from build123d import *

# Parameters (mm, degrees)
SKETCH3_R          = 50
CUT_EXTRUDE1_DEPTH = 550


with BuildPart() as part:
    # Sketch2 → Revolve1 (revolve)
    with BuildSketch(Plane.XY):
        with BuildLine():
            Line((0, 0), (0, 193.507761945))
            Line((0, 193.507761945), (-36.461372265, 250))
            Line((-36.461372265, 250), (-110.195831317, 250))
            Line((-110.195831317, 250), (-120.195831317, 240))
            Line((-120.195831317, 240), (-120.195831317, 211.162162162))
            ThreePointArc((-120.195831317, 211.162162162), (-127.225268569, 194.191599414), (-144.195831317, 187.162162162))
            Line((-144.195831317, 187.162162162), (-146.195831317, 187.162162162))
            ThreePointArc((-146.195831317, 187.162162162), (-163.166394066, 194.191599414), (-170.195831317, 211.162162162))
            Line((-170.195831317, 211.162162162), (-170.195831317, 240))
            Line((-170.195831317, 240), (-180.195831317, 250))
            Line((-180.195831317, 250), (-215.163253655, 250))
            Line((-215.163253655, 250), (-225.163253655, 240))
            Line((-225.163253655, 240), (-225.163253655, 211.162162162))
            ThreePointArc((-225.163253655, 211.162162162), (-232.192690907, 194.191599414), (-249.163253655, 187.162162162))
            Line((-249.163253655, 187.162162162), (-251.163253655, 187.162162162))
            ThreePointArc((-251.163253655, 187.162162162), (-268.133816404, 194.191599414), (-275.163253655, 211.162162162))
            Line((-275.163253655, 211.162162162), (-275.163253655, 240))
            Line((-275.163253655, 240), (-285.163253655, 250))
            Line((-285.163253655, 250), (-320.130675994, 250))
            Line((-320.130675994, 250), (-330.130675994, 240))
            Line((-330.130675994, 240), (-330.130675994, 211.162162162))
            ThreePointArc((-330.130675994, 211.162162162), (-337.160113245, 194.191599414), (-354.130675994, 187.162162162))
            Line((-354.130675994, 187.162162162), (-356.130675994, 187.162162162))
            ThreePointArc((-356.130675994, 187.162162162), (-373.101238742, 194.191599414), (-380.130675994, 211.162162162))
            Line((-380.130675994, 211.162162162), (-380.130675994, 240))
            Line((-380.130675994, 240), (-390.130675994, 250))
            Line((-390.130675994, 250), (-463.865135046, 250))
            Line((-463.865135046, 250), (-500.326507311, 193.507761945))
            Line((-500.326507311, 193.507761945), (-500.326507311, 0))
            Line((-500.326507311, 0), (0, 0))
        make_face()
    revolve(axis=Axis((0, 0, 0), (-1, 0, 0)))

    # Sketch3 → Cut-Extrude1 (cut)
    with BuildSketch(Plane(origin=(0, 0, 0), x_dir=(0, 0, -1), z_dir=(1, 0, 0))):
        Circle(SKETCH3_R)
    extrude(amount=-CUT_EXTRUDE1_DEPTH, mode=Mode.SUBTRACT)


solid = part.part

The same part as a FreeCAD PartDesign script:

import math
import FreeCAD as App
import Part
import Sketcher

V = App.Vector

doc = App.newDocument("Part")
body = doc.addObject("PartDesign::Body", "Body")

sketch1 = doc.addObject("Sketcher::SketchObject", "Sketch")
body.addObject(sketch1)
sketch1.AttachmentSupport = (doc.XY_Plane, [""])
sketch1.MapMode = "FlatFace"
sketch1.addGeometry(Part.LineSegment(V(0, 0, 0), V(0, 193.5, 0)), False)
sketch1.addGeometry(Part.LineSegment(V(0, 193.5, 0), V(-36.5, 250, 0)), False)
sketch1.addGeometry(Part.LineSegment(V(-36.5, 250, 0), V(-110.2, 250, 0)), False)
sketch1.addGeometry(Part.LineSegment(V(-110.2, 250, 0), V(-120.2, 240, 0)), False)
sketch1.addGeometry(Part.LineSegment(V(-120.2, 240, 0), V(-120.2, 211.2, 0)), False)
sketch1.addGeometry(Part.ArcOfCircle(Part.Circle(V(-144.2, 211.2, 0), V(0, 0, 1), 24), math.radians(-90), math.radians(0)), False)
sketch1.addGeometry(Part.LineSegment(V(-144.2, 187.2, 0), V(-146.2, 187.2, 0)), False)
sketch1.addGeometry(Part.ArcOfCircle(Part.Circle(V(-146.2, 211.2, 0), V(0, 0, 1), 24), math.radians(180), math.radians(270)), False)
sketch1.addGeometry(Part.LineSegment(V(-170.2, 211.2, 0), V(-170.2, 240, 0)), False)
sketch1.addGeometry(Part.LineSegment(V(-170.2, 240, 0), V(-180.2, 250, 0)), False)
sketch1.addGeometry(Part.LineSegment(V(-180.2, 250, 0), V(-215.2, 250, 0)), False)
sketch1.addGeometry(Part.LineSegment(V(-215.2, 250, 0), V(-225.2, 240, 0)), False)
sketch1.addGeometry(Part.LineSegment(V(-225.2, 240, 0), V(-225.2, 211.2, 0)), False)
sketch1.addGeometry(Part.ArcOfCircle(Part.Circle(V(-249.2, 211.2, 0), V(0, 0, 1), 24), math.radians(-90), math.radians(0)), False)
sketch1.addGeometry(Part.LineSegment(V(-249.2, 187.2, 0), V(-251.2, 187.2, 0)), False)
sketch1.addGeometry(Part.ArcOfCircle(Part.Circle(V(-251.2, 211.2, 0), V(0, 0, 1), 24), math.radians(180), math.radians(270)), False)
sketch1.addGeometry(Part.LineSegment(V(-275.2, 211.2, 0), V(-275.2, 240, 0)), False)
sketch1.addGeometry(Part.LineSegment(V(-275.2, 240, 0), V(-285.2, 250, 0)), False)
sketch1.addGeometry(Part.LineSegment(V(-285.2, 250, 0), V(-320.1, 250, 0)), False)
sketch1.addGeometry(Part.LineSegment(V(-320.1, 250, 0), V(-330.1, 240, 0)), False)
sketch1.addGeometry(Part.LineSegment(V(-330.1, 240, 0), V(-330.1, 211.2, 0)), False)
sketch1.addGeometry(Part.ArcOfCircle(Part.Circle(V(-354.1, 211.2, 0), V(0, 0, 1), 24), math.radians(-90), math.radians(0)), False)
sketch1.addGeometry(Part.LineSegment(V(-354.1, 187.2, 0), V(-356.1, 187.2, 0)), False)
sketch1.addGeometry(Part.ArcOfCircle(Part.Circle(V(-356.1, 211.2, 0), V(0, 0, 1), 24), math.radians(-180), math.radians(-90)), False)
sketch1.addGeometry(Part.LineSegment(V(-380.1, 211.2, 0), V(-380.1, 240, 0)), False)
sketch1.addGeometry(Part.LineSegment(V(-380.1, 240, 0), V(-390.1, 250, 0)), False)
sketch1.addGeometry(Part.LineSegment(V(-390.1, 250, 0), V(-463.9, 250, 0)), False)
sketch1.addGeometry(Part.LineSegment(V(-463.9, 250, 0), V(-500.3, 193.5, 0)), False)
sketch1.addGeometry(Part.LineSegment(V(-500.3, 193.5, 0), V(-500.3, 0, 0)), False)
sketch1.addGeometry(Part.LineSegment(V(-500.3, 0, 0), V(0, 0, 0)), False)
sketch1.addConstraint(Sketcher.Constraint("Coincident", 0, 2, 1, 1))
sketch1.addConstraint(Sketcher.Constraint("Coincident", 1, 2, 2, 1))
sketch1.addConstraint(Sketcher.Constraint("Coincident", 2, 2, 3, 1))
sketch1.addConstraint(Sketcher.Constraint("Coincident", 3, 2, 4, 1))
sketch1.addConstraint(Sketcher.Constraint("Tangent", 4, 2, 5, 2))
sketch1.addConstraint(Sketcher.Constraint("Tangent", 5, 1, 6, 1))
sketch1.addConstraint(Sketcher.Constraint("Tangent", 6, 2, 7, 2))
sketch1.addConstraint(Sketcher.Constraint("Tangent", 7, 1, 8, 1))
sketch1.addConstraint(Sketcher.Constraint("Coincident", 8, 2, 9, 1))
sketch1.addConstraint(Sketcher.Constraint("Coincident", 9, 2, 10, 1))
sketch1.addConstraint(Sketcher.Constraint("Coincident", 10, 2, 11, 1))
sketch1.addConstraint(Sketcher.Constraint("Coincident", 11, 2, 12, 1))
sketch1.addConstraint(Sketcher.Constraint("Tangent", 12, 2, 13, 2))
sketch1.addConstraint(Sketcher.Constraint("Tangent", 13, 1, 14, 1))
sketch1.addConstraint(Sketcher.Constraint("Tangent", 14, 2, 15, 2))
sketch1.addConstraint(Sketcher.Constraint("Tangent", 15, 1, 16, 1))
sketch1.addConstraint(Sketcher.Constraint("Coincident", 16, 2, 17, 1))
sketch1.addConstraint(Sketcher.Constraint("Coincident", 17, 2, 18, 1))
sketch1.addConstraint(Sketcher.Constraint("Coincident", 18, 2, 19, 1))
sketch1.addConstraint(Sketcher.Constraint("Coincident", 19, 2, 20, 1))
sketch1.addConstraint(Sketcher.Constraint("Tangent", 20, 2, 21, 2))
sketch1.addConstraint(Sketcher.Constraint("Tangent", 21, 1, 22, 1))
sketch1.addConstraint(Sketcher.Constraint("Tangent", 22, 2, 23, 2))
sketch1.addConstraint(Sketcher.Constraint("Tangent", 23, 1, 24, 1))
sketch1.addConstraint(Sketcher.Constraint("Coincident", 24, 2, 25, 1))
sketch1.addConstraint(Sketcher.Constraint("Coincident", 25, 2, 26, 1))
sketch1.addConstraint(Sketcher.Constraint("Coincident", 26, 2, 27, 1))
sketch1.addConstraint(Sketcher.Constraint("Coincident", 27, 2, 28, 1))
sketch1.addConstraint(Sketcher.Constraint("Coincident", 28, 2, 29, 1))
sketch1.addConstraint(Sketcher.Constraint("Coincident", 29, 2, 0, 1))
sketch1.addConstraint(Sketcher.Constraint("Vertical", 0))
sketch1.addConstraint(Sketcher.Constraint("Horizontal", 2))
sketch1.addConstraint(Sketcher.Constraint("Vertical", 4))
sketch1.addConstraint(Sketcher.Constraint("Horizontal", 6))
sketch1.addConstraint(Sketcher.Constraint("Vertical", 8))
sketch1.addConstraint(Sketcher.Constraint("Horizontal", 10))
sketch1.addConstraint(Sketcher.Constraint("Vertical", 12))
sketch1.addConstraint(Sketcher.Constraint("Horizontal", 14))
sketch1.addConstraint(Sketcher.Constraint("Vertical", 16))
sketch1.addConstraint(Sketcher.Constraint("Horizontal", 18))
sketch1.addConstraint(Sketcher.Constraint("Vertical", 20))
sketch1.addConstraint(Sketcher.Constraint("Horizontal", 22))
sketch1.addConstraint(Sketcher.Constraint("Vertical", 24))
sketch1.addConstraint(Sketcher.Constraint("Horizontal", 26))
sketch1.addConstraint(Sketcher.Constraint("Vertical", 28))
sketch1.addConstraint(Sketcher.Constraint("Horizontal", 29))
sketch1.addConstraint(Sketcher.Constraint("Coincident", 29, 2, -1, 1))
sketch1.addConstraint(Sketcher.Constraint("Equal", 5, 7))
sketch1.addConstraint(Sketcher.Constraint("Equal", 7, 13))
sketch1.addConstraint(Sketcher.Constraint("Equal", 13, 15))
sketch1.addConstraint(Sketcher.Constraint("Equal", 15, 21))
sketch1.addConstraint(Sketcher.Constraint("Equal", 21, 23))
sketch1.addConstraint(Sketcher.Constraint("Perpendicular", 3, 9))
sketch1.addConstraint(Sketcher.Constraint("Perpendicular", 9, 11))
sketch1.addConstraint(Sketcher.Constraint("Perpendicular", 11, 17))
sketch1.addConstraint(Sketcher.Constraint("Perpendicular", 17, 19))
sketch1.addConstraint(Sketcher.Constraint("Perpendicular", 19, 25))
sketch1.addConstraint(Sketcher.Constraint("Horizontal", 7, 3, 13, 3))
sketch1.addConstraint(Sketcher.Constraint("Horizontal", 15, 3, 21, 3))
sketch1.addConstraint(Sketcher.Constraint("Horizontal", 3, 2, 8, 2))
sketch1.addConstraint(Sketcher.Constraint("Horizontal", 2, 2, 9, 2))
sketch1.addConstraint(Sketcher.Constraint("Horizontal", 8, 2, 11, 2))
sketch1.addConstraint(Sketcher.Constraint("Horizontal", 11, 2, 16, 2))
sketch1.addConstraint(Sketcher.Constraint("Horizontal", 10, 2, 17, 2))
sketch1.addConstraint(Sketcher.Constraint("Horizontal", 16, 2, 19, 2))
sketch1.addConstraint(Sketcher.Constraint("Horizontal", 19, 2, 24, 2))
sketch1.addConstraint(Sketcher.Constraint("Horizontal", 18, 2, 25, 2))
sketch1.addConstraint(Sketcher.Constraint("Horizontal", 0, 2, 27, 2))
sketch1.addConstraint(Sketcher.Constraint("Equal", 6, 14))
sketch1.addConstraint(Sketcher.Constraint("Equal", 10, 18))
sketch1.addConstraint(Sketcher.Constraint("Equal", 14, 22))
sketch1.addConstraint(Sketcher.Constraint("Equal", 2, 26))
sketch1.addConstraint(Sketcher.Constraint("Equal", 3, 9))
sketch1.addConstraint(Sketcher.Constraint("Equal", 1, 27))
sketch1.addConstraint(Sketcher.Constraint("Radius", 5, 24.0))
sketch1.addConstraint(Sketcher.Constraint("DistanceX", 6, 2, 6, 1, 2.0))
sketch1.addConstraint(Sketcher.Constraint("DistanceY", -1, 1, 1, 2, 250.0))
sketch1.addConstraint(Sketcher.Constraint("DistanceY", -1, 1, 3, 2, 240.0))
sketch1.addConstraint(Sketcher.Constraint("DistanceX", 2, 2, 2, 1, 73.734459))
sketch1.addConstraint(Sketcher.Constraint("DistanceY", 0, 1, 0, 2, 193.507762))
sketch1.addConstraint(Sketcher.Constraint("DistanceY", 0, 2, 5, 3, 17.6544))
sketch1.addConstraint(Sketcher.Constraint("Distance", 1, 67.236929))
sketch1.addConstraint(Sketcher.Constraint("DistanceX", 10, 2, 10, 1, 34.967422))
revolution = doc.addObject("PartDesign::Revolution", "Revolution")
body.addObject(revolution)
revolution.Profile = sketch1
revolution.ReferenceAxis = (sketch1, ["H_Axis"])
revolution.Angle = 360

sketch2 = doc.addObject("Sketcher::SketchObject", "Sketch001")
body.addObject(sketch2)
sketch2.AttachmentSupport = (doc.YZ_Plane, [""])
sketch2.MapMode = "FlatFace"
sketch2.addGeometry(Part.Circle(V(0, 0, 0), V(0, 0, 1), 50), False)
sketch2.addConstraint(Sketcher.Constraint("Coincident", 0, 3, -1, 1))
sketch2.addConstraint(Sketcher.Constraint("Diameter", 0, 100.0))
pocket1 = doc.addObject("PartDesign::Pocket", "Pocket")
body.addObject(pocket1)
pocket1.Profile = sketch2
pocket1.Length = 550

doc.recompute()
